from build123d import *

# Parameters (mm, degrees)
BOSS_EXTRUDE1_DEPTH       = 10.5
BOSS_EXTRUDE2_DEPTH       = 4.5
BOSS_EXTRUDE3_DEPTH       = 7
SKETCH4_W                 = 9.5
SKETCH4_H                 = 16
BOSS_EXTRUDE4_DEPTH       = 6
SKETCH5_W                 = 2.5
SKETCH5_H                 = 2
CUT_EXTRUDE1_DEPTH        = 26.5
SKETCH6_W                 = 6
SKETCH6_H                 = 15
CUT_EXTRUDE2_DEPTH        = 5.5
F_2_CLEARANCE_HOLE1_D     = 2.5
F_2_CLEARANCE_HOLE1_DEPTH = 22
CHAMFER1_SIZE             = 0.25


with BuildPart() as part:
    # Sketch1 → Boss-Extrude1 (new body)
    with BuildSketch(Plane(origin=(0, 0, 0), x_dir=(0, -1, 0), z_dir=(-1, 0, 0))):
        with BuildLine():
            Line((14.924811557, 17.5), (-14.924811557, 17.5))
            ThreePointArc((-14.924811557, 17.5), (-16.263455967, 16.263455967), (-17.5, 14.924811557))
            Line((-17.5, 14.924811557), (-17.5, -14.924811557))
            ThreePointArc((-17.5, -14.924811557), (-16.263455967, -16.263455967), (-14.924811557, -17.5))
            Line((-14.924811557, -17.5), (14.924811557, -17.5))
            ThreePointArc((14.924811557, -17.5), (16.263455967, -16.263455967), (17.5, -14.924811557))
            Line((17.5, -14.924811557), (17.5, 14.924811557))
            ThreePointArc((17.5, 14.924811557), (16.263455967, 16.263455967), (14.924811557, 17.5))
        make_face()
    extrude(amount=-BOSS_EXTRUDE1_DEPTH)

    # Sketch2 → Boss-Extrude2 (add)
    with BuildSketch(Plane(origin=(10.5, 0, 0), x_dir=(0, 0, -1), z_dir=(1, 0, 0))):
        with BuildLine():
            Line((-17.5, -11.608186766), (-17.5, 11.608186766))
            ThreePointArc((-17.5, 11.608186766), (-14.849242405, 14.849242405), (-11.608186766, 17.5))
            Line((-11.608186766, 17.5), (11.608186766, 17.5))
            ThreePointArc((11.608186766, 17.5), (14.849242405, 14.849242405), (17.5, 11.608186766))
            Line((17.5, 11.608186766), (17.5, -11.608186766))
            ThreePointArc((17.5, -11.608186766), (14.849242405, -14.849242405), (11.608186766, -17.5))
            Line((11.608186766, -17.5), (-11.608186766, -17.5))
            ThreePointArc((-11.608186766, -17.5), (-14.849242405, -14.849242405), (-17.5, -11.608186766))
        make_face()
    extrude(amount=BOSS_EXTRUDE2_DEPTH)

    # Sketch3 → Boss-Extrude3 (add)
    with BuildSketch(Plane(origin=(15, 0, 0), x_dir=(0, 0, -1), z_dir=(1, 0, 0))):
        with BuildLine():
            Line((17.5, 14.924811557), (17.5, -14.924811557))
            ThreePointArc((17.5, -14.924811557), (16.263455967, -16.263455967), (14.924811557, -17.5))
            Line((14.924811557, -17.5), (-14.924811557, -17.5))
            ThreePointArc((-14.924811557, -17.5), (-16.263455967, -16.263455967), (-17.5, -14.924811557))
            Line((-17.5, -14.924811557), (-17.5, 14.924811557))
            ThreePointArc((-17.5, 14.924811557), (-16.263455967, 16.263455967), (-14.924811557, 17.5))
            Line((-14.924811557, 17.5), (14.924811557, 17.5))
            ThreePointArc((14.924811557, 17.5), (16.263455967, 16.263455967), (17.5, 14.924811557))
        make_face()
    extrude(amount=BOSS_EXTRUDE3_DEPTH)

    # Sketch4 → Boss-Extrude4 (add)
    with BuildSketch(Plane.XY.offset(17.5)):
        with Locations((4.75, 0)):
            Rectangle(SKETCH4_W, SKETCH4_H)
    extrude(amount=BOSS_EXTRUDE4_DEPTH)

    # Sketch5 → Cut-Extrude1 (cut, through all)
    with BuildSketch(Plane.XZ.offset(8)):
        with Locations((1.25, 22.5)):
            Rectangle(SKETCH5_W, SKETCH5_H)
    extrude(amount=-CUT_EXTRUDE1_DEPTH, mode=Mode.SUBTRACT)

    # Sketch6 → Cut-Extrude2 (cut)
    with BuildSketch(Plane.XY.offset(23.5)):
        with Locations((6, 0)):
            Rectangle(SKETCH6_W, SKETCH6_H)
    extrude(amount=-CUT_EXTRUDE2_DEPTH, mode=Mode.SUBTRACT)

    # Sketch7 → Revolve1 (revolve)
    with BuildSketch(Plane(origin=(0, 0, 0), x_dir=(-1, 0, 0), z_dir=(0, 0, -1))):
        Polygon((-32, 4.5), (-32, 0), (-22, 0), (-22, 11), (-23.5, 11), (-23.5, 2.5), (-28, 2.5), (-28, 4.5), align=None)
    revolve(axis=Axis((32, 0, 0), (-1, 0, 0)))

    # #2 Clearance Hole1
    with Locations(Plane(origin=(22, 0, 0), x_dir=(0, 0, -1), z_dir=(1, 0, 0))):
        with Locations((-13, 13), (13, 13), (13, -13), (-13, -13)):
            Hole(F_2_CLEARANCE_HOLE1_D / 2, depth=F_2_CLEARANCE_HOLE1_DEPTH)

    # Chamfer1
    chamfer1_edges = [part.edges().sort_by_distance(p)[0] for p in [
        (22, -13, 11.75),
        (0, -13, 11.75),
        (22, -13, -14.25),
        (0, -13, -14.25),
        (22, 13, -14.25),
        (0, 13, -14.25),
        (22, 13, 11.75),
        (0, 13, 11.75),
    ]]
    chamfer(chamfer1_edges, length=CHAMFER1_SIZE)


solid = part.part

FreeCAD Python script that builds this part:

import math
import FreeCAD as App
import Part
import Sketcher


def edges_at(feature, points):
    """Names of the edges that pass closest to the given points."""
    edges = feature.Shape.Edges
    near = lambda p: min(range(len(edges)), key=lambda i: edges[i].distToShape(Part.Vertex(*p))[0])
    return sorted({f"Edge{near(p) + 1}" for p in points})


def add_polygon(sketch, points):
    """Adds a closed chain of lines whose ends are joined by coincident constraints."""
    first, n = sketch.GeometryCount, len(points)
    for a, b in zip(points, points[1:] + points[:1]):
        sketch.addGeometry(Part.LineSegment(App.Vector(*a, 0), App.Vector(*b, 0)), False)
    for i in range(n):
        sketch.addConstraint(Sketcher.Constraint("Coincident", first + i, 2, first + (i + 1) % n, 1))

doc = App.newDocument("Part")
body = doc.addObject("PartDesign::Body", "Body")

# Sketch on YZ plane
sketch1 = body.newObject("Sketcher::SketchObject", "Sketch")
sketch1.AttachmentSupport = (doc.getObject("YZ_Plane"), [""])
sketch1.MapMode = "FlatFace"
sketch1.addGeometry([
    Part.LineSegment(App.Vector(-14.9, 17.5, 0), App.Vector(14.9, 17.5, 0)),  # 0
    Part.ArcOfCircle(Part.Circle(App.Vector(0, 0, 0), App.Vector(0, 0, 1), 23), math.radians(40.46), math.radians(49.54)),  # 1
    Part.LineSegment(App.Vector(17.5, 14.9, 0), App.Vector(17.5, -14.9, 0)),  # 2
    Part.ArcOfCircle(Part.Circle(App.Vector(0, 0, 0), App.Vector(0, 0, 1), 23), math.radians(-49.54), math.radians(-40.46)),  # 3
    Part.LineSegment(App.Vector(14.9, -17.5, 0), App.Vector(-14.9, -17.5, 0)),  # 4
    Part.ArcOfCircle(Part.Circle(App.Vector(0, 0, 0), App.Vector(0, 0, 1), 23), math.radians(-139.54), math.radians(-130.46)),  # 5
    Part.LineSegment(App.Vector(-17.5, -14.9, 0), App.Vector(-17.5, 14.9, 0)),  # 6
    Part.ArcOfCircle(Part.Circle(App.Vector(0, 0, 0), App.Vector(0, 0, 1), 23), math.radians(130.46), math.radians(139.54)),  # 7
], False)
sketch1.addConstraint([
    Sketcher.Constraint("Coincident", 0, 2, 1, 2),
    Sketcher.Constraint("Coincident", 1, 1, 2, 1),
    Sketcher.Constraint("Coincident", 2, 2, 3, 2),
    Sketcher.Constraint("Coincident", 3, 1, 4, 1),
    Sketcher.Constraint("Coincident", 4, 2, 5, 2),
    Sketcher.Constraint("Coincident", 5, 1, 6, 1),
    Sketcher.Constraint("Coincident", 6, 2, 7, 2),
    Sketcher.Constraint("Coincident", 7, 1, 0, 1),
    Sketcher.Constraint("Horizontal", 0),
    Sketcher.Constraint("Vertical", 2),
    Sketcher.Constraint("Horizontal", 4),
    Sketcher.Constraint("Vertical", 6),
    Sketcher.Constraint("Coincident", 1, 3, -1, 1),
    Sketcher.Constraint("Coincident", 3, 3, -1, 1),
    Sketcher.Constraint("Coincident", 5, 3, -1, 1),
    Sketcher.Constraint("Coincident", 7, 3, -1, 1),
    Sketcher.Constraint("Equal", 1, 3),
    Sketcher.Constraint("Equal", 3, 5),
    Sketcher.Constraint("Equal", 5, 7),
    Sketcher.Constraint("Horizontal", 2, 2, 5, 1),
    Sketcher.Constraint("Vertical", 0, 2, 3, 1),
    Sketcher.Constraint("Equal", 4, 2),
    Sketcher.Constraint("Radius", 1, 23.0),
    Sketcher.Constraint("DistanceY", -1, 1, 0, 2, 17.5),
])
pad1 = body.newObject("PartDesign::Pad", "Pad")
pad1.Profile = sketch1
pad1.Length = 10.5

# Sketch on YZ plane
sketch2 = body.newObject("Sketcher::SketchObject", "Sketch001")
sketch2.AttachmentSupport = (doc.getObject("YZ_Plane"), [""])
sketch2.MapMode = "FlatFace"
sketch2.AttachmentOffset = App.Placement(App.Vector(0, 0, 10.5), App.Rotation())
sketch2.addGeometry([
    Part.LineSegment(App.Vector(12, 18, 0), App.Vector(-12, 18, 0)),  # 0
    Part.ArcOfCircle(Part.Circle(App.Vector(0, 0, 0), App.Vector(0, 0, 1), 21), math.radians(124), math.radians(146)),  # 1
    Part.LineSegment(App.Vector(-18, 12, 0), App.Vector(-18, -12, 0)),  # 2
    Part.ArcOfCircle(Part.Circle(App.Vector(0, 0, 0), App.Vector(0, 0, 1), 21), math.radians(-146), math.radians(-124)),  # 3
    Part.LineSegment(App.Vector(-12, -18, 0), App.Vector(12, -18, 0)),  # 4
    Part.ArcOfCircle(Part.Circle(App.Vector(0, 0, 0), App.Vector(0, 0, 1), 21), math.radians(-56), math.radians(-34)),  # 5
    Part.LineSegment(App.Vector(18, -12, 0), App.Vector(18, 12, 0)),  # 6
    Part.ArcOfCircle(Part.Circle(App.Vector(0, 0, 0), App.Vector(0, 0, 1), 21), math.radians(34), math.radians(56)),  # 7
], False)
sketch2.addConstraint([
    Sketcher.Constraint("Coincident", 0, 2, 1, 1),
    Sketcher.Constraint("Coincident", 1, 2, 2, 1),
    Sketcher.Constraint("Coincident", 2, 2, 3, 1),
    Sketcher.Constraint("Coincident", 3, 2, 4, 1),
    Sketcher.Constraint("Coincident", 4, 2, 5, 1),
    Sketcher.Constraint("Coincident", 5, 2, 6, 1),
    Sketcher.Constraint("Coincident", 6, 2, 7, 1),
    Sketcher.Constraint("Coincident", 7, 2, 0, 1),
    Sketcher.Constraint("Horizontal", 0),
    Sketcher.Constraint("Vertical", 2),
    Sketcher.Constraint("Horizontal", 4),
    Sketcher.Constraint("Vertical", 6),
    Sketcher.Constraint("Coincident", 1, 3, -1, 1),
    Sketcher.Constraint("Coincident", 3, 3, -1, 1),
    Sketcher.Constraint("Coincident", 5, 3, -1, 1),
    Sketcher.Constraint("Coincident", 7, 3, -1, 1),
    Sketcher.Constraint("Equal", 1, 3),
    Sketcher.Constraint("Equal", 3, 5),
    Sketcher.Constraint("Equal", 5, 7),
    Sketcher.Constraint("Horizontal", 2, 2, 5, 2),
    Sketcher.Constraint("Vertical", 0, 2, 3, 2),
    Sketcher.Constraint("Equal", 4, 2),
    Sketcher.Constraint("Radius", 1, 21.0),
    Sketcher.Constraint("DistanceY", -1, 1, 0, 2, 17.5),
])
pad2 = body.newObject("PartDesign::Pad", "Pad001")
pad2.Profile = sketch2
pad2.Length = 4.5

# Sketch on YZ plane
sketch3 = body.newObject("Sketcher::SketchObject", "Sketch002")
sketch3.AttachmentSupport = (doc.getObject("YZ_Plane"), [""])
sketch3.MapMode = "FlatFace"
sketch3.AttachmentOffset = App.Placement(App.Vector(0, 0, 15), App.Rotation())
sketch3.addGeometry([
    Part.LineSegment(App.Vector(-14.9, -17.5, 0), App.Vector(14.9, -17.5, 0)),  # 0
    Part.ArcOfCircle(Part.Circle(App.Vector(0, 0, 0), App.Vector(0, 0, 1), 23), math.radians(-49.54), math.radians(-40.46)),  # 1
    Part.LineSegment(App.Vector(17.5, -14.9, 0), App.Vector(17.5, 14.9, 0)),  # 2
    Part.ArcOfCircle(Part.Circle(App.Vector(0, 0, 0), App.Vector(0, 0, 1), 23), math.radians(40.46), math.radians(49.54)),  # 3
    Part.LineSegment(App.Vector(14.9, 17.5, 0), App.Vector(-14.9, 17.5, 0)),  # 4
    Part.ArcOfCircle(Part.Circle(App.Vector(0, 0, 0), App.Vector(0, 0, 1), 23), math.radians(130.46), math.radians(139.54)),  # 5
    Part.LineSegment(App.Vector(-17.5, 14.9, 0), App.Vector(-17.5, -14.9, 0)),  # 6
    Part.ArcOfCircle(Part.Circle(App.Vector(0, 0, 0), App.Vector(0, 0, 1), 23), math.radians(-139.54), math.radians(-130.46)),  # 7
], False)
sketch3.addConstraint([
    Sketcher.Constraint("Coincident", 0, 2, 1, 1),
    Sketcher.Constraint("Coincident", 1, 2, 2, 1),
    Sketcher.Constraint("Coincident", 2, 2, 3, 1),
    Sketcher.Constraint("Coincident", 3, 2, 4, 1),
    Sketcher.Constraint("Coincident", 4, 2, 5, 1),
    Sketcher.Constraint("Coincident", 5, 2, 6, 1),
    Sketcher.Constraint("Coincident", 6, 2, 7, 1),
    Sketcher.Constraint("Coincident", 7, 2, 0, 1),
    Sketcher.Constraint("Horizontal", 0),
    Sketcher.Constraint("Vertical", 2),
    Sketcher.Constraint("Horizontal", 4),
    Sketcher.Constraint("Vertical", 6),
    Sketcher.Constraint("Coincident", 1, 3, -1, 1),
    Sketcher.Constraint("Coincident", 3, 3, -1, 1),
    Sketcher.Constraint("Coincident", 5, 3, -1, 1),
    Sketcher.Constraint("Coincident", 7, 3, -1, 1),
    Sketcher.Constraint("Equal", 1, 3),
    Sketcher.Constraint("Equal", 3, 5),
    Sketcher.Constraint("Equal", 5, 7),
    Sketcher.Constraint("Horizontal", 2, 2, 5, 2),
    Sketcher.Constraint("Vertical", 0, 2, 3, 2),
    Sketcher.Constraint("Equal", 4, 2),
    Sketcher.Constraint("Radius", 1, 23.0),
    Sketcher.Constraint("DistanceY", 0, 2, -1, 1, 17.5),
])
pad3 = body.newObject("PartDesign::Pad", "Pad002")
pad3.Profile = sketch3
pad3.Length = 7

# Sketch on XY plane
sketch4 = body.newObject("Sketcher::SketchObject", "Sketch003")
sketch4.AttachmentSupport = (doc.getObject("XY_Plane"), [""])
sketch4.MapMode = "FlatFace"
sketch4.AttachmentOffset = App.Placement(App.Vector(0, 0, 17.5), App.Rotation())
add_polygon(sketch4, [(0, 8), (0, -8), (10, -8), (10, 8)])  # lines 0-3
sketch4.addConstraint([
    Sketcher.Constraint("Vertical", 0),
    Sketcher.Constraint("Horizontal", 1),
    Sketcher.Constraint("Vertical", 2),
    Sketcher.Constraint("Horizontal", 3),
    Sketcher.Constraint("Symmetric", 0, 2, 3, 2, -1, 1),
    Sketcher.Constraint("DistanceY", 0, 2, 0, 1, 16.0),
    Sketcher.Constraint("DistanceX", 1, 1, 1, 2, 9.5),
])
pad4 = body.newObject("PartDesign::Pad", "Pad003")
pad4.Profile = sketch4
pad4.Length = 6

# Sketch on XZ plane
sketch5 = body.newObject("Sketcher::SketchObject", "Sketch004")
sketch5.AttachmentSupport = (doc.getObject("XZ_Plane"), [""])
sketch5.MapMode = "FlatFace"
sketch5.AttachmentOffset = App.Placement(App.Vector(0, 0, 8), App.Rotation())
add_polygon(sketch5, [(0, 23.5), (0, 21.5), (2.5, 21.5), (2.5, 23.5)])  # lines 0-3
sketch5.addConstraint([
    Sketcher.Constraint("Vertical", 0),
    Sketcher.Constraint("Horizontal", 1),
    Sketcher.Constraint("Vertical", 2),
    Sketcher.Constraint("Horizontal", 3),
    Sketcher.Constraint("PointOnObject", 0, 2, -2),
    Sketcher.Constraint("DistanceY", 0, 2, 0, 1, 2.0),
    Sketcher.Constraint("DistanceX", 1, 1, 1, 2, 2.5),
    Sketcher.Constraint("DistanceY", -1, 1, 0, 2, 21.5),
])
pocket1 = body.newObject("PartDesign::Pocket", "Pocket")
pocket1.Profile = sketch5
pocket1.Type = "ThroughAll"

# Sketch on XY plane
sketch6 = body.newObject("Sketcher::SketchObject", "Sketch005")
sketch6.AttachmentSupport = (doc.getObject("XY_Plane"), [""])
sketch6.MapMode = "FlatFace"
sketch6.AttachmentOffset = App.Placement(App.Vector(0, 0, 23.5), App.Rotation())
add_polygon(sketch6, [(3, 8), (3, -8), (9, -8), (9, 8)])  # lines 0-3
sketch6.addConstraint([
    Sketcher.Constraint("Vertical", 0),
    Sketcher.Constraint("Horizontal", 1),
    Sketcher.Constraint("Vertical", 2),
    Sketcher.Constraint("Horizontal", 3),
    Sketcher.Constraint("DistanceX", 1, 1, 1, 2, 6.0),
    Sketcher.Constraint("DistanceY", 0, 2, 0, 1, 15.0),
    Sketcher.Constraint("DistanceX", -1, 1, 0, 2, 3.0),
    Sketcher.Constraint("DistanceY", 0, 2, -1, 1, 7.5),
])
pocket2 = body.newObject("PartDesign::Pocket", "Pocket001")
pocket2.Profile = sketch6
pocket2.Length = 5.5

# Sketch on XY plane
sketch7 = body.newObject("Sketcher::SketchObject", "Sketch006")
sketch7.AttachmentSupport = (doc.getObject("XY_Plane"), [""])
sketch7.MapMode = "FlatFace"
add_polygon(sketch7, [(32, 4.5), (32, 0), (22, 0), (22, 11), (23.5, 11), (23.5, 2.5), (28, 2.5), (28, 4.5)])  # lines 0-7
sketch7.addConstraint([
    Sketcher.Constraint("Vertical", 0),
    Sketcher.Constraint("Horizontal", 1),
    Sketcher.Constraint("Vertical", 2),
    Sketcher.Constraint("Horizontal", 3),
    Sketcher.Constraint("Vertical", 4),
    Sketcher.Constraint("Horizontal", 5),
    Sketcher.Constraint("Vertical", 6),
    Sketcher.Constraint("Horizontal", 7),
    Sketcher.Constraint("PointOnObject", 0, 2, -1),
    Sketcher.Constraint("Equal", 5, 0),
    Sketcher.Constraint("DistanceX", 1, 2, 1, 1, 10.0),
    Sketcher.Constraint("DistanceX", 7, 1, 7, 2, 4.0),
    Sketcher.Constraint("DistanceY", 2, 1, 2, 2, 11.0),
    Sketcher.Constraint("DistanceY", 6, 1, 6, 2, 2.0),
    Sketcher.Constraint("DistanceX", 3, 1, 3, 2, 1.5),
    Sketcher.Constraint("DistanceX", -1, 1, 0, 2, 32.0),
])
revolution = body.newObject("PartDesign::Revolution", "Revolution")
revolution.Profile = sketch7
revolution.ReferenceAxis = (sketch7, ["H_Axis"])
revolution.Angle = 360

# Sketch on YZ plane
sketch8 = body.newObject("Sketcher::SketchObject", "Sketch007")
sketch8.AttachmentSupport = (doc.getObject("YZ_Plane"), [""])
sketch8.MapMode = "FlatFace"
sketch8.AttachmentOffset = App.Placement(App.Vector(0, 0, 22), App.Rotation())
sketch8.addGeometry([
    Part.Circle(App.Vector(13, 13, 0), App.Vector(0, 0, 1), 1.2),
    Part.Circle(App.Vector(13, -13, 0), App.Vector(0, 0, 1), 1.2),
    Part.Circle(App.Vector(-13, -13, 0), App.Vector(0, 0, 1), 1.2),
    Part.Circle(App.Vector(-13, 13, 0), App.Vector(0, 0, 1), 1.2),
], False)
sketch8.addConstraint([
    Sketcher.Constraint("Equal", 0, 1),
    Sketcher.Constraint("Equal", 1, 2),
    Sketcher.Constraint("Equal", 2, 3),
    Sketcher.Constraint("Symmetric", 0, 3, 2, 3, -1, 1),
    Sketcher.Constraint("Symmetric", 1, 3, 3, 3, -1, 1),
    Sketcher.Constraint("Symmetric", 1, 3, 2, 3, -2),
    Sketcher.Constraint("Diameter", 0, 2.5),
    Sketcher.Constraint("DistanceX", -1, 1, 0, 3, 13.0),
    Sketcher.Constraint("DistanceY", -1, 1, 0, 3, 13.0),
])
doc.recompute()
hole = body.newObject("PartDesign::Hole", "Hole")
hole.Profile = sketch8
hole.ThreadType = "None"
hole.Diameter = 2.5
hole.DepthType = "Dimension"
hole.Depth = 22
hole.DrillPoint = "Flat"
doc.recompute()

chamfer = body.newObject("PartDesign::Chamfer", "Chamfer")
chamfer.Base = (hole, edges_at(hole, [
    (22, -13, 11.75),
    (0, -13, 11.75),
    (22, -13, -14.25),
    (0, -13, -14.25),
    (22, 13, -14.25),
    (0, 13, -14.25),
    (22, 13, 11.75),
    (0, 13, 11.75),
]))
chamfer.Size = 0.25

doc.recompute()
